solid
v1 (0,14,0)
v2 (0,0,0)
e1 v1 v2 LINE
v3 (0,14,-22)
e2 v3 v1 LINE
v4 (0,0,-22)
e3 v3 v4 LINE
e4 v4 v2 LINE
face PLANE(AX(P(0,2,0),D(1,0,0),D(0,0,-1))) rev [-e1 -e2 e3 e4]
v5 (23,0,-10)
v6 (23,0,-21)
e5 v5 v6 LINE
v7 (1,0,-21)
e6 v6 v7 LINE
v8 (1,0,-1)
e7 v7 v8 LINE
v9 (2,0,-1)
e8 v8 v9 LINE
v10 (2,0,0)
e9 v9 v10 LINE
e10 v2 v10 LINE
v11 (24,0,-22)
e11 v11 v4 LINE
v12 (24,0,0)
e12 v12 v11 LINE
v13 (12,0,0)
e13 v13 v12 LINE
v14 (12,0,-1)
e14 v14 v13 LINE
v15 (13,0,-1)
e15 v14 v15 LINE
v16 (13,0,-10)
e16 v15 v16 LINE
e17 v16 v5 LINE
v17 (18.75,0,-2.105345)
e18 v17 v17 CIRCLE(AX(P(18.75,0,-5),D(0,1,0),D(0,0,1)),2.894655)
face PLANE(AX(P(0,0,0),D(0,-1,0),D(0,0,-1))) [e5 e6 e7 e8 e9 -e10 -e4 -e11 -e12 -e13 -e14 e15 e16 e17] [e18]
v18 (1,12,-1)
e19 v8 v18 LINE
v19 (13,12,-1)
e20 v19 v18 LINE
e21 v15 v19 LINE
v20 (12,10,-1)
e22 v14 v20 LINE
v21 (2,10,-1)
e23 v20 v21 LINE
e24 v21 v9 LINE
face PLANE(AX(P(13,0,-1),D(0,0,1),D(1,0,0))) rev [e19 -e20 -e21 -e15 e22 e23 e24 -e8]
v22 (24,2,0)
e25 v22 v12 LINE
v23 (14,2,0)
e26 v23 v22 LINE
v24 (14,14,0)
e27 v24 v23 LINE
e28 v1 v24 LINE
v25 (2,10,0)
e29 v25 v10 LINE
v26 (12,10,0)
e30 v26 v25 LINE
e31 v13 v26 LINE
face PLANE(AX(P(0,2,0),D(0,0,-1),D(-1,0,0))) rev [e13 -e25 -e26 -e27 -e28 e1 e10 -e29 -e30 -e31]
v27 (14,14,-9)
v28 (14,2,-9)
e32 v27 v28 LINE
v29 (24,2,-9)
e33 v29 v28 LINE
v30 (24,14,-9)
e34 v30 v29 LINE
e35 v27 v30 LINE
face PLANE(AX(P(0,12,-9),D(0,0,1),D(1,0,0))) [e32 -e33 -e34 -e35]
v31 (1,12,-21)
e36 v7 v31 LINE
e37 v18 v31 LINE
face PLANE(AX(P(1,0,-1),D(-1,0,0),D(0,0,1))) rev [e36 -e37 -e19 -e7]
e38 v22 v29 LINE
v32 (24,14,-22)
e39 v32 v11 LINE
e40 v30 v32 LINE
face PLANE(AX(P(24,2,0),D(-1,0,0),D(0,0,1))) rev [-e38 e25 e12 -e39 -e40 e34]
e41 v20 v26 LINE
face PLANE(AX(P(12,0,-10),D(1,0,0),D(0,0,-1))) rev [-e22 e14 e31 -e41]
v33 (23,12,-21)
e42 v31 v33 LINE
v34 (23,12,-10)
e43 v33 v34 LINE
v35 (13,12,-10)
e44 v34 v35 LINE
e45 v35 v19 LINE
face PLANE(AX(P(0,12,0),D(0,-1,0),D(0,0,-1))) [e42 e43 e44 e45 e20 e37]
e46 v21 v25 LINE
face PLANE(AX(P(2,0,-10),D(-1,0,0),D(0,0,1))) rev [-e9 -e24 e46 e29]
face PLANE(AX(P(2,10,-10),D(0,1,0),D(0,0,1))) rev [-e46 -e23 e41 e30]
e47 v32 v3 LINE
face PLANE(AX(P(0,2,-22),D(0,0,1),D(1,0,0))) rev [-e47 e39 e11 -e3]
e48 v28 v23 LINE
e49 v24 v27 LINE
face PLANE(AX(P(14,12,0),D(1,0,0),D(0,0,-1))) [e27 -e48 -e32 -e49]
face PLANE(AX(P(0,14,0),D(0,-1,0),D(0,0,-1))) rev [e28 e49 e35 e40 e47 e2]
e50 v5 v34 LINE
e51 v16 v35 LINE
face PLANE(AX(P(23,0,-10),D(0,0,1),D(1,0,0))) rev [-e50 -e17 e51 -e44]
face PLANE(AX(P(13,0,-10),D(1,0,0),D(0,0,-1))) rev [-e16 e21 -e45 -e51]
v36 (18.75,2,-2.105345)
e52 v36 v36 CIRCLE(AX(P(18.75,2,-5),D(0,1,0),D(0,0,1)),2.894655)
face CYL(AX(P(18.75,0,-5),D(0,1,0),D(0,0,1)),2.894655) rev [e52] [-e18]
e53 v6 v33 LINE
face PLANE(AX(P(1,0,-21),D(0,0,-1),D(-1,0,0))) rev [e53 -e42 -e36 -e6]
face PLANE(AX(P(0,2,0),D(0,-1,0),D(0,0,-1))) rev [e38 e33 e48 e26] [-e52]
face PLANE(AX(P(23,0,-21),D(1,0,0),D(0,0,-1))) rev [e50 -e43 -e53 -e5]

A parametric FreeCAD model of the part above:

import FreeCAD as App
import Part
import Sketcher

doc = App.newDocument("Part")
body = doc.addObject("PartDesign::Body", "Body")

# Sketch on XZ plane
sketch1 = doc.addObject("Sketcher::SketchObject", "Sketch")
body.addObject(sketch1)
sketch1.AttachmentSupport = (doc.XZ_Plane, [""])
sketch1.MapMode = "FlatFace"
sketch1.addGeometry([
    Part.LineSegment(App.Vector(0, -22, 0), App.Vector(0, 0, 0)),
    Part.LineSegment(App.Vector(0, 0, 0), App.Vector(24, 0, 0)),
    Part.LineSegment(App.Vector(24, 0, 0), App.Vector(24, -22, 0)),
    Part.LineSegment(App.Vector(24, -22, 0), App.Vector(0, -22, 0)),
], False)
sketch1.addConstraint([
    Sketcher.Constraint("Coincident", 0, 2, 1, 1),
    Sketcher.Constraint("Coincident", 1, 2, 2, 1),
    Sketcher.Constraint("Coincident", 2, 2, 3, 1),
    Sketcher.Constraint("Coincident", 3, 2, 0, 1),
    Sketcher.Constraint("Vertical", 0),
    Sketcher.Constraint("Horizontal", 1),
    Sketcher.Constraint("Vertical", 2),
    Sketcher.Constraint("Horizontal", 3),
    Sketcher.Constraint("Coincident", 0, 2, -1, 1),
    Sketcher.Constraint("DistanceX", 1, 1, 1, 2, 24.0),
    Sketcher.Constraint("DistanceY", 0, 1, 0, 2, 22.0),
])
pad1 = doc.addObject("PartDesign::Pad", "Pad")
body.addObject(pad1)
pad1.Profile = sketch1
pad1.Length = 2
pad1.Reversed = True

# Sketch on XZ plane
sketch2 = doc.addObject("Sketcher::SketchObject", "Sketch001")
body.addObject(sketch2)
sketch2.AttachmentSupport = (doc.XZ_Plane, [""])
sketch2.MapMode = "FlatFace"
sketch2.AttachmentOffset = App.Placement(App.Vector(0, 0, -2), App.Rotation())
sketch2.addGeometry([
    Part.LineSegment(App.Vector(23, -21, 0), App.Vector(1, -21, 0)),  # 0
    Part.LineSegment(App.Vector(1, -21, 0), App.Vector(1, -1, 0)),  # 1
    Part.LineSegment(App.Vector(1, -1, 0), App.Vector(13, -1, 0)),  # 2
    Part.LineSegment(App.Vector(13, -1, 0), App.Vector(13, -10, 0)),  # 3
    Part.LineSegment(App.Vector(13, -10, 0), App.Vector(23, -10, 0)),  # 4
    Part.LineSegment(App.Vector(23, -10, 0), App.Vector(23, -21, 0)),  # 5
], False)
sketch2.addConstraint([
    Sketcher.Constraint("Coincident", 0, 2, 1, 1),
    Sketcher.Constraint("Coincident", 1, 2, 2, 1),
    Sketcher.Constraint("Coincident", 2, 2, 3, 1),
    Sketcher.Constraint("Coincident", 3, 2, 4, 1),
    Sketcher.Constraint("Coincident", 4, 2, 5, 1),
    Sketcher.Constraint("Coincident", 5, 2, 0, 1),
    Sketcher.Constraint("Horizontal", 0),
    Sketcher.Constraint("Vertical", 1),
    Sketcher.Constraint("Horizontal", 2),
    Sketcher.Constraint("Vertical", 3),
    Sketcher.Constraint("Horizontal", 4),
    Sketcher.Constraint("Vertical", 5),
    Sketcher.Constraint("DistanceX", 0, 2, 0, 1, 22.0),
    Sketcher.Constraint("DistanceX", 2, 1, 2, 2, 12.0),
    Sketcher.Constraint("DistanceY", 1, 1, 1, 2, 20.0),
    Sketcher.Constraint("DistanceY", 3, 2, 3, 1, 9.0),
    Sketcher.Constraint("DistanceX", -1, 1, 0, 2, 1.0),
    Sketcher.Constraint("DistanceY", 0, 2, -1, 1, 21.0),
])
pocket1 = doc.addObject("PartDesign::Pocket", "Pocket")
body.addObject(pocket1)
pocket1.Profile = sketch2
pocket1.Length = 2
pocket1.Reversed = True

# Sketch on XZ plane
sketch3 = doc.addObject("Sketcher::SketchObject", "Sketch002")
body.addObject(sketch3)
sketch3.AttachmentSupport = (doc.XZ_Plane, [""])
sketch3.MapMode = "FlatFace"
sketch3.AttachmentOffset = App.Placement(App.Vector(0, 0, -2), App.Rotation())
sketch3.addGeometry(Part.Circle(App.Vector(18.75, -5, 0), App.Vector(0, 0, 1), 1.75), False)
sketch3.addConstraint([
    Sketcher.Constraint("Diameter", 0, 3.5),
    Sketcher.Constraint("DistanceY", 0, 3, -1, 1, 5.0),
    Sketcher.Constraint("DistanceX", -1, 1, 0, 3, 18.75),
])
pocket2 = doc.addObject("PartDesign::Pocket", "Pocket001")
body.addObject(pocket2)
pocket2.Profile = sketch3
pocket2.Length = 2
pocket2.Reversed = True

# Sketch on XZ plane
sketch4 = doc.addObject("Sketcher::SketchObject", "Sketch003")
body.addObject(sketch4)
sketch4.AttachmentSupport = (doc.XZ_Plane, [""])
sketch4.MapMode = "FlatFace"
sketch4.AttachmentOffset = App.Placement(App.Vector(0, 0, -2), App.Rotation())
sketch4.addGeometry(Part.Circle(App.Vector(18.75, -5, 0), App.Vector(0, 0, 1), 2.894655), False)
sketch4.addConstraint([
    Sketcher.Constraint("DistanceY", 0, 3, -1, 1, 5.0),
    Sketcher.Constraint("Diameter", 0, 5.78931),
    Sketcher.Constraint("DistanceX", -1, 1, 0, 3, 18.75),
])
pocket3 = doc.addObject("PartDesign::Pocket", "Pocket002")
body.addObject(pocket3)
pocket3.Profile = sketch4
pocket3.Length = 2
pocket3.Reversed = True

# Sketch on XZ plane
sketch5 = doc.addObject("Sketcher::SketchObject", "Sketch004")
body.addObject(sketch5)
sketch5.AttachmentSupport = (doc.XZ_Plane, [""])
sketch5.MapMode = "FlatFace"
sketch5.AttachmentOffset = App.Placement(App.Vector(0, 0, -2), App.Rotation())
sketch5.addGeometry([
    Part.LineSegment(App.Vector(14, 0, 0), App.Vector(14, -9, 0)),  # 0
    Part.LineSegment(App.Vector(14, -9, 0), App.Vector(24, -9, 0)),  # 1
    Part.LineSegment(App.Vector(24, -9, 0), App.Vector(24, -22, 0)),  # 2
    Part.LineSegment(App.Vector(24, -22, 0), App.Vector(0, -22, 0)),  # 3
    Part.LineSegment(App.Vector(0, -22, 0), App.Vector(0, 0, 0)),  # 4
    Part.LineSegment(App.Vector(0, 0, 0), App.Vector(14, 0, 0)),  # 5
    Part.LineSegment(App.Vector(13, -1, 0), App.Vector(1, -1, 0)),  # 6
    Part.LineSegment(App.Vector(1, -1, 0), App.Vector(1, -21, 0)),  # 7
    Part.LineSegment(App.Vector(1, -21, 0), App.Vector(23, -21, 0)),  # 8
    Part.LineSegment(App.Vector(23, -21, 0), App.Vector(23, -10, 0)),  # 9
    Part.LineSegment(App.Vector(23, -10, 0), App.Vector(13, -10, 0)),  # 10
    Part.LineSegment(App.Vector(13, -10, 0), App.Vector(13, -1, 0)),  # 11
], False)
sketch5.addConstraint([
    Sketcher.Constraint("Coincident", 0, 2, 1, 1),
    Sketcher.Constraint("Coincident", 1, 2, 2, 1),
    Sketcher.Constraint("Coincident", 2, 2, 3, 1),
    Sketcher.Constraint("Coincident", 3, 2, 4, 1),
    Sketcher.Constraint("Coincident", 4, 2, 5, 1),
    Sketcher.Constraint("Coincident", 5, 2, 0, 1),
    Sketcher.Constraint("Coincident", 6, 2, 7, 1),
    Sketcher.Constraint("Coincident", 7, 2, 8, 1),
    Sketcher.Constraint("Coincident", 8, 2, 9, 1),
    Sketcher.Constraint("Coincident", 9, 2, 10, 1),
    Sketcher.Constraint("Coincident", 10, 2, 11, 1),
    Sketcher.Constraint("Coincident", 11, 2, 6, 1),
    Sketcher.Constraint("Vertical", 0),
    Sketcher.Constraint("Horizontal", 1),
    Sketcher.Constraint("Vertical", 2),
    Sketcher.Constraint("Horizontal", 3),
    Sketcher.Constraint("Vertical", 4),
    Sketcher.Constraint("Horizontal", 5),
    Sketcher.Constraint("Horizontal", 6),
    Sketcher.Constraint("Vertical", 7),
    Sketcher.Constraint("Horizontal", 8),
    Sketcher.Constraint("Vertical", 9),
    Sketcher.Constraint("Horizontal", 10),
    Sketcher.Constraint("Vertical", 11),
    Sketcher.Constraint("Coincident", 4, 2, -1, 1),
    Sketcher.Constraint("Equal", 1, 10),
    Sketcher.Constraint("Equal", 8, 4),
    Sketcher.Constraint("Equal", 0, 11),
    Sketcher.Constraint("DistanceX", 1, 1, 1, 2, 10.0),
    Sketcher.Constraint("DistanceX", 3, 2, 3, 1, 24.0),
    Sketcher.Constraint("DistanceX", 6, 2, 6, 1, 12.0),
    Sketcher.Constraint("DistanceY", 0, 2, 0, 1, 9.0),
    Sketcher.Constraint("DistanceY", 7, 2, 7, 1, 20.0),
    Sketcher.Constraint("DistanceX", -1, 1, 6, 2, 1.0),
    Sketcher.Constraint("DistanceY", 6, 2, -1, 1, 1.0),
])
pad2 = doc.addObject("PartDesign::Pad", "Pad001")
body.addObject(pad2)
pad2.Profile = sketch5
pad2.Length = 10
pad2.Reversed = True

# Sketch on XY plane
sketch6 = doc.addObject("Sketcher::SketchObject", "Sketch005")
body.addObject(sketch6)
sketch6.AttachmentSupport = (doc.XY_Plane, [""])
sketch6.MapMode = "FlatFace"
sketch6.addGeometry([
    Part.LineSegment(App.Vector(2, 10, 0), App.Vector(2, 0, 0)),
    Part.LineSegment(App.Vector(2, 0, 0), App.Vector(12, 0, 0)),
    Part.LineSegment(App.Vector(12, 0, 0), App.Vector(12, 10, 0)),
    Part.LineSegment(App.Vector(12, 10, 0), App.Vector(2, 10, 0)),
], False)
sketch6.addConstraint([
    Sketcher.Constraint("Coincident", 0, 2, 1, 1),
    Sketcher.Constraint("Coincident", 1, 2, 2, 1),
    Sketcher.Constraint("Coincident", 2, 2, 3, 1),
    Sketcher.Constraint("Coincident", 3, 2, 0, 1),
    Sketcher.Constraint("Vertical", 0),
    Sketcher.Constraint("Horizontal", 1),
    Sketcher.Constraint("Vertical", 2),
    Sketcher.Constraint("Horizontal", 3),
    Sketcher.Constraint("PointOnObject", 0, 2, -1),
    Sketcher.Constraint("Equal", 3, 0),
    Sketcher.Constraint("DistanceX", 1, 1, 1, 2, 10.0),
    Sketcher.Constraint("DistanceX", -1, 1, 0, 2, 2.0),
])
pocket4 = doc.addObject("PartDesign::Pocket", "Pocket003")
body.addObject(pocket4)
pocket4.Profile = sketch6
pocket4.Length = 10

# Sketch on XZ plane
sketch7 = doc.addObject("Sketcher::SketchObject", "Sketch006")
body.addObject(sketch7)
sketch7.AttachmentSupport = (doc.XZ_Plane, [""])
sketch7.MapMode = "FlatFace"
sketch7.AttachmentOffset = App.Placement(App.Vector(0, 0, -12), App.Rotation())
sketch7.addGeometry([
    Part.LineSegment(App.Vector(0, -22, 0), App.Vector(0, 0, 0)),  # 0
    Part.LineSegment(App.Vector(0, 0, 0), App.Vector(14, 0, 0)),  # 1
    Part.LineSegment(App.Vector(14, 0, 0), App.Vector(14, -9, 0)),  # 2
    Part.LineSegment(App.Vector(14, -9, 0), App.Vector(24, -9, 0)),  # 3
    Part.LineSegment(App.Vector(24, -9, 0), App.Vector(24, -22, 0)),  # 4
    Part.LineSegment(App.Vector(24, -22, 0), App.Vector(0, -22, 0)),  # 5
], False)
sketch7.addConstraint([
    Sketcher.Constraint("Coincident", 0, 2, 1, 1),
    Sketcher.Constraint("Coincident", 1, 2, 2, 1),
    Sketcher.Constraint("Coincident", 2, 2, 3, 1),
    Sketcher.Constraint("Coincident", 3, 2, 4, 1),
    Sketcher.Constraint("Coincident", 4, 2, 5, 1),
    Sketcher.Constraint("Coincident", 5, 2, 0, 1),
    Sketcher.Constraint("Vertical", 0),
    Sketcher.Constraint("Horizontal", 1),
    Sketcher.Constraint("Vertical", 2),
    Sketcher.Constraint("Horizontal", 3),
    Sketcher.Constraint("Vertical", 4),
    Sketcher.Constraint("Horizontal", 5),
    Sketcher.Constraint("Coincident", 0, 2, -1, 1),
    Sketcher.Constraint("DistanceX", 1, 1, 1, 2, 14.0),
    Sketcher.Constraint("DistanceX", 3, 1, 3, 2, 10.0),
    Sketcher.Constraint("DistanceY", 0, 1, 0, 2, 22.0),
    Sketcher.Constraint("DistanceY", 2, 2, 2, 1, 9.0),
])
pad3 = doc.addObject("PartDesign::Pad", "Pad002")
body.addObject(pad3)
pad3.Profile = sketch7
pad3.Length = 2
pad3.Reversed = True

doc.recompute()
